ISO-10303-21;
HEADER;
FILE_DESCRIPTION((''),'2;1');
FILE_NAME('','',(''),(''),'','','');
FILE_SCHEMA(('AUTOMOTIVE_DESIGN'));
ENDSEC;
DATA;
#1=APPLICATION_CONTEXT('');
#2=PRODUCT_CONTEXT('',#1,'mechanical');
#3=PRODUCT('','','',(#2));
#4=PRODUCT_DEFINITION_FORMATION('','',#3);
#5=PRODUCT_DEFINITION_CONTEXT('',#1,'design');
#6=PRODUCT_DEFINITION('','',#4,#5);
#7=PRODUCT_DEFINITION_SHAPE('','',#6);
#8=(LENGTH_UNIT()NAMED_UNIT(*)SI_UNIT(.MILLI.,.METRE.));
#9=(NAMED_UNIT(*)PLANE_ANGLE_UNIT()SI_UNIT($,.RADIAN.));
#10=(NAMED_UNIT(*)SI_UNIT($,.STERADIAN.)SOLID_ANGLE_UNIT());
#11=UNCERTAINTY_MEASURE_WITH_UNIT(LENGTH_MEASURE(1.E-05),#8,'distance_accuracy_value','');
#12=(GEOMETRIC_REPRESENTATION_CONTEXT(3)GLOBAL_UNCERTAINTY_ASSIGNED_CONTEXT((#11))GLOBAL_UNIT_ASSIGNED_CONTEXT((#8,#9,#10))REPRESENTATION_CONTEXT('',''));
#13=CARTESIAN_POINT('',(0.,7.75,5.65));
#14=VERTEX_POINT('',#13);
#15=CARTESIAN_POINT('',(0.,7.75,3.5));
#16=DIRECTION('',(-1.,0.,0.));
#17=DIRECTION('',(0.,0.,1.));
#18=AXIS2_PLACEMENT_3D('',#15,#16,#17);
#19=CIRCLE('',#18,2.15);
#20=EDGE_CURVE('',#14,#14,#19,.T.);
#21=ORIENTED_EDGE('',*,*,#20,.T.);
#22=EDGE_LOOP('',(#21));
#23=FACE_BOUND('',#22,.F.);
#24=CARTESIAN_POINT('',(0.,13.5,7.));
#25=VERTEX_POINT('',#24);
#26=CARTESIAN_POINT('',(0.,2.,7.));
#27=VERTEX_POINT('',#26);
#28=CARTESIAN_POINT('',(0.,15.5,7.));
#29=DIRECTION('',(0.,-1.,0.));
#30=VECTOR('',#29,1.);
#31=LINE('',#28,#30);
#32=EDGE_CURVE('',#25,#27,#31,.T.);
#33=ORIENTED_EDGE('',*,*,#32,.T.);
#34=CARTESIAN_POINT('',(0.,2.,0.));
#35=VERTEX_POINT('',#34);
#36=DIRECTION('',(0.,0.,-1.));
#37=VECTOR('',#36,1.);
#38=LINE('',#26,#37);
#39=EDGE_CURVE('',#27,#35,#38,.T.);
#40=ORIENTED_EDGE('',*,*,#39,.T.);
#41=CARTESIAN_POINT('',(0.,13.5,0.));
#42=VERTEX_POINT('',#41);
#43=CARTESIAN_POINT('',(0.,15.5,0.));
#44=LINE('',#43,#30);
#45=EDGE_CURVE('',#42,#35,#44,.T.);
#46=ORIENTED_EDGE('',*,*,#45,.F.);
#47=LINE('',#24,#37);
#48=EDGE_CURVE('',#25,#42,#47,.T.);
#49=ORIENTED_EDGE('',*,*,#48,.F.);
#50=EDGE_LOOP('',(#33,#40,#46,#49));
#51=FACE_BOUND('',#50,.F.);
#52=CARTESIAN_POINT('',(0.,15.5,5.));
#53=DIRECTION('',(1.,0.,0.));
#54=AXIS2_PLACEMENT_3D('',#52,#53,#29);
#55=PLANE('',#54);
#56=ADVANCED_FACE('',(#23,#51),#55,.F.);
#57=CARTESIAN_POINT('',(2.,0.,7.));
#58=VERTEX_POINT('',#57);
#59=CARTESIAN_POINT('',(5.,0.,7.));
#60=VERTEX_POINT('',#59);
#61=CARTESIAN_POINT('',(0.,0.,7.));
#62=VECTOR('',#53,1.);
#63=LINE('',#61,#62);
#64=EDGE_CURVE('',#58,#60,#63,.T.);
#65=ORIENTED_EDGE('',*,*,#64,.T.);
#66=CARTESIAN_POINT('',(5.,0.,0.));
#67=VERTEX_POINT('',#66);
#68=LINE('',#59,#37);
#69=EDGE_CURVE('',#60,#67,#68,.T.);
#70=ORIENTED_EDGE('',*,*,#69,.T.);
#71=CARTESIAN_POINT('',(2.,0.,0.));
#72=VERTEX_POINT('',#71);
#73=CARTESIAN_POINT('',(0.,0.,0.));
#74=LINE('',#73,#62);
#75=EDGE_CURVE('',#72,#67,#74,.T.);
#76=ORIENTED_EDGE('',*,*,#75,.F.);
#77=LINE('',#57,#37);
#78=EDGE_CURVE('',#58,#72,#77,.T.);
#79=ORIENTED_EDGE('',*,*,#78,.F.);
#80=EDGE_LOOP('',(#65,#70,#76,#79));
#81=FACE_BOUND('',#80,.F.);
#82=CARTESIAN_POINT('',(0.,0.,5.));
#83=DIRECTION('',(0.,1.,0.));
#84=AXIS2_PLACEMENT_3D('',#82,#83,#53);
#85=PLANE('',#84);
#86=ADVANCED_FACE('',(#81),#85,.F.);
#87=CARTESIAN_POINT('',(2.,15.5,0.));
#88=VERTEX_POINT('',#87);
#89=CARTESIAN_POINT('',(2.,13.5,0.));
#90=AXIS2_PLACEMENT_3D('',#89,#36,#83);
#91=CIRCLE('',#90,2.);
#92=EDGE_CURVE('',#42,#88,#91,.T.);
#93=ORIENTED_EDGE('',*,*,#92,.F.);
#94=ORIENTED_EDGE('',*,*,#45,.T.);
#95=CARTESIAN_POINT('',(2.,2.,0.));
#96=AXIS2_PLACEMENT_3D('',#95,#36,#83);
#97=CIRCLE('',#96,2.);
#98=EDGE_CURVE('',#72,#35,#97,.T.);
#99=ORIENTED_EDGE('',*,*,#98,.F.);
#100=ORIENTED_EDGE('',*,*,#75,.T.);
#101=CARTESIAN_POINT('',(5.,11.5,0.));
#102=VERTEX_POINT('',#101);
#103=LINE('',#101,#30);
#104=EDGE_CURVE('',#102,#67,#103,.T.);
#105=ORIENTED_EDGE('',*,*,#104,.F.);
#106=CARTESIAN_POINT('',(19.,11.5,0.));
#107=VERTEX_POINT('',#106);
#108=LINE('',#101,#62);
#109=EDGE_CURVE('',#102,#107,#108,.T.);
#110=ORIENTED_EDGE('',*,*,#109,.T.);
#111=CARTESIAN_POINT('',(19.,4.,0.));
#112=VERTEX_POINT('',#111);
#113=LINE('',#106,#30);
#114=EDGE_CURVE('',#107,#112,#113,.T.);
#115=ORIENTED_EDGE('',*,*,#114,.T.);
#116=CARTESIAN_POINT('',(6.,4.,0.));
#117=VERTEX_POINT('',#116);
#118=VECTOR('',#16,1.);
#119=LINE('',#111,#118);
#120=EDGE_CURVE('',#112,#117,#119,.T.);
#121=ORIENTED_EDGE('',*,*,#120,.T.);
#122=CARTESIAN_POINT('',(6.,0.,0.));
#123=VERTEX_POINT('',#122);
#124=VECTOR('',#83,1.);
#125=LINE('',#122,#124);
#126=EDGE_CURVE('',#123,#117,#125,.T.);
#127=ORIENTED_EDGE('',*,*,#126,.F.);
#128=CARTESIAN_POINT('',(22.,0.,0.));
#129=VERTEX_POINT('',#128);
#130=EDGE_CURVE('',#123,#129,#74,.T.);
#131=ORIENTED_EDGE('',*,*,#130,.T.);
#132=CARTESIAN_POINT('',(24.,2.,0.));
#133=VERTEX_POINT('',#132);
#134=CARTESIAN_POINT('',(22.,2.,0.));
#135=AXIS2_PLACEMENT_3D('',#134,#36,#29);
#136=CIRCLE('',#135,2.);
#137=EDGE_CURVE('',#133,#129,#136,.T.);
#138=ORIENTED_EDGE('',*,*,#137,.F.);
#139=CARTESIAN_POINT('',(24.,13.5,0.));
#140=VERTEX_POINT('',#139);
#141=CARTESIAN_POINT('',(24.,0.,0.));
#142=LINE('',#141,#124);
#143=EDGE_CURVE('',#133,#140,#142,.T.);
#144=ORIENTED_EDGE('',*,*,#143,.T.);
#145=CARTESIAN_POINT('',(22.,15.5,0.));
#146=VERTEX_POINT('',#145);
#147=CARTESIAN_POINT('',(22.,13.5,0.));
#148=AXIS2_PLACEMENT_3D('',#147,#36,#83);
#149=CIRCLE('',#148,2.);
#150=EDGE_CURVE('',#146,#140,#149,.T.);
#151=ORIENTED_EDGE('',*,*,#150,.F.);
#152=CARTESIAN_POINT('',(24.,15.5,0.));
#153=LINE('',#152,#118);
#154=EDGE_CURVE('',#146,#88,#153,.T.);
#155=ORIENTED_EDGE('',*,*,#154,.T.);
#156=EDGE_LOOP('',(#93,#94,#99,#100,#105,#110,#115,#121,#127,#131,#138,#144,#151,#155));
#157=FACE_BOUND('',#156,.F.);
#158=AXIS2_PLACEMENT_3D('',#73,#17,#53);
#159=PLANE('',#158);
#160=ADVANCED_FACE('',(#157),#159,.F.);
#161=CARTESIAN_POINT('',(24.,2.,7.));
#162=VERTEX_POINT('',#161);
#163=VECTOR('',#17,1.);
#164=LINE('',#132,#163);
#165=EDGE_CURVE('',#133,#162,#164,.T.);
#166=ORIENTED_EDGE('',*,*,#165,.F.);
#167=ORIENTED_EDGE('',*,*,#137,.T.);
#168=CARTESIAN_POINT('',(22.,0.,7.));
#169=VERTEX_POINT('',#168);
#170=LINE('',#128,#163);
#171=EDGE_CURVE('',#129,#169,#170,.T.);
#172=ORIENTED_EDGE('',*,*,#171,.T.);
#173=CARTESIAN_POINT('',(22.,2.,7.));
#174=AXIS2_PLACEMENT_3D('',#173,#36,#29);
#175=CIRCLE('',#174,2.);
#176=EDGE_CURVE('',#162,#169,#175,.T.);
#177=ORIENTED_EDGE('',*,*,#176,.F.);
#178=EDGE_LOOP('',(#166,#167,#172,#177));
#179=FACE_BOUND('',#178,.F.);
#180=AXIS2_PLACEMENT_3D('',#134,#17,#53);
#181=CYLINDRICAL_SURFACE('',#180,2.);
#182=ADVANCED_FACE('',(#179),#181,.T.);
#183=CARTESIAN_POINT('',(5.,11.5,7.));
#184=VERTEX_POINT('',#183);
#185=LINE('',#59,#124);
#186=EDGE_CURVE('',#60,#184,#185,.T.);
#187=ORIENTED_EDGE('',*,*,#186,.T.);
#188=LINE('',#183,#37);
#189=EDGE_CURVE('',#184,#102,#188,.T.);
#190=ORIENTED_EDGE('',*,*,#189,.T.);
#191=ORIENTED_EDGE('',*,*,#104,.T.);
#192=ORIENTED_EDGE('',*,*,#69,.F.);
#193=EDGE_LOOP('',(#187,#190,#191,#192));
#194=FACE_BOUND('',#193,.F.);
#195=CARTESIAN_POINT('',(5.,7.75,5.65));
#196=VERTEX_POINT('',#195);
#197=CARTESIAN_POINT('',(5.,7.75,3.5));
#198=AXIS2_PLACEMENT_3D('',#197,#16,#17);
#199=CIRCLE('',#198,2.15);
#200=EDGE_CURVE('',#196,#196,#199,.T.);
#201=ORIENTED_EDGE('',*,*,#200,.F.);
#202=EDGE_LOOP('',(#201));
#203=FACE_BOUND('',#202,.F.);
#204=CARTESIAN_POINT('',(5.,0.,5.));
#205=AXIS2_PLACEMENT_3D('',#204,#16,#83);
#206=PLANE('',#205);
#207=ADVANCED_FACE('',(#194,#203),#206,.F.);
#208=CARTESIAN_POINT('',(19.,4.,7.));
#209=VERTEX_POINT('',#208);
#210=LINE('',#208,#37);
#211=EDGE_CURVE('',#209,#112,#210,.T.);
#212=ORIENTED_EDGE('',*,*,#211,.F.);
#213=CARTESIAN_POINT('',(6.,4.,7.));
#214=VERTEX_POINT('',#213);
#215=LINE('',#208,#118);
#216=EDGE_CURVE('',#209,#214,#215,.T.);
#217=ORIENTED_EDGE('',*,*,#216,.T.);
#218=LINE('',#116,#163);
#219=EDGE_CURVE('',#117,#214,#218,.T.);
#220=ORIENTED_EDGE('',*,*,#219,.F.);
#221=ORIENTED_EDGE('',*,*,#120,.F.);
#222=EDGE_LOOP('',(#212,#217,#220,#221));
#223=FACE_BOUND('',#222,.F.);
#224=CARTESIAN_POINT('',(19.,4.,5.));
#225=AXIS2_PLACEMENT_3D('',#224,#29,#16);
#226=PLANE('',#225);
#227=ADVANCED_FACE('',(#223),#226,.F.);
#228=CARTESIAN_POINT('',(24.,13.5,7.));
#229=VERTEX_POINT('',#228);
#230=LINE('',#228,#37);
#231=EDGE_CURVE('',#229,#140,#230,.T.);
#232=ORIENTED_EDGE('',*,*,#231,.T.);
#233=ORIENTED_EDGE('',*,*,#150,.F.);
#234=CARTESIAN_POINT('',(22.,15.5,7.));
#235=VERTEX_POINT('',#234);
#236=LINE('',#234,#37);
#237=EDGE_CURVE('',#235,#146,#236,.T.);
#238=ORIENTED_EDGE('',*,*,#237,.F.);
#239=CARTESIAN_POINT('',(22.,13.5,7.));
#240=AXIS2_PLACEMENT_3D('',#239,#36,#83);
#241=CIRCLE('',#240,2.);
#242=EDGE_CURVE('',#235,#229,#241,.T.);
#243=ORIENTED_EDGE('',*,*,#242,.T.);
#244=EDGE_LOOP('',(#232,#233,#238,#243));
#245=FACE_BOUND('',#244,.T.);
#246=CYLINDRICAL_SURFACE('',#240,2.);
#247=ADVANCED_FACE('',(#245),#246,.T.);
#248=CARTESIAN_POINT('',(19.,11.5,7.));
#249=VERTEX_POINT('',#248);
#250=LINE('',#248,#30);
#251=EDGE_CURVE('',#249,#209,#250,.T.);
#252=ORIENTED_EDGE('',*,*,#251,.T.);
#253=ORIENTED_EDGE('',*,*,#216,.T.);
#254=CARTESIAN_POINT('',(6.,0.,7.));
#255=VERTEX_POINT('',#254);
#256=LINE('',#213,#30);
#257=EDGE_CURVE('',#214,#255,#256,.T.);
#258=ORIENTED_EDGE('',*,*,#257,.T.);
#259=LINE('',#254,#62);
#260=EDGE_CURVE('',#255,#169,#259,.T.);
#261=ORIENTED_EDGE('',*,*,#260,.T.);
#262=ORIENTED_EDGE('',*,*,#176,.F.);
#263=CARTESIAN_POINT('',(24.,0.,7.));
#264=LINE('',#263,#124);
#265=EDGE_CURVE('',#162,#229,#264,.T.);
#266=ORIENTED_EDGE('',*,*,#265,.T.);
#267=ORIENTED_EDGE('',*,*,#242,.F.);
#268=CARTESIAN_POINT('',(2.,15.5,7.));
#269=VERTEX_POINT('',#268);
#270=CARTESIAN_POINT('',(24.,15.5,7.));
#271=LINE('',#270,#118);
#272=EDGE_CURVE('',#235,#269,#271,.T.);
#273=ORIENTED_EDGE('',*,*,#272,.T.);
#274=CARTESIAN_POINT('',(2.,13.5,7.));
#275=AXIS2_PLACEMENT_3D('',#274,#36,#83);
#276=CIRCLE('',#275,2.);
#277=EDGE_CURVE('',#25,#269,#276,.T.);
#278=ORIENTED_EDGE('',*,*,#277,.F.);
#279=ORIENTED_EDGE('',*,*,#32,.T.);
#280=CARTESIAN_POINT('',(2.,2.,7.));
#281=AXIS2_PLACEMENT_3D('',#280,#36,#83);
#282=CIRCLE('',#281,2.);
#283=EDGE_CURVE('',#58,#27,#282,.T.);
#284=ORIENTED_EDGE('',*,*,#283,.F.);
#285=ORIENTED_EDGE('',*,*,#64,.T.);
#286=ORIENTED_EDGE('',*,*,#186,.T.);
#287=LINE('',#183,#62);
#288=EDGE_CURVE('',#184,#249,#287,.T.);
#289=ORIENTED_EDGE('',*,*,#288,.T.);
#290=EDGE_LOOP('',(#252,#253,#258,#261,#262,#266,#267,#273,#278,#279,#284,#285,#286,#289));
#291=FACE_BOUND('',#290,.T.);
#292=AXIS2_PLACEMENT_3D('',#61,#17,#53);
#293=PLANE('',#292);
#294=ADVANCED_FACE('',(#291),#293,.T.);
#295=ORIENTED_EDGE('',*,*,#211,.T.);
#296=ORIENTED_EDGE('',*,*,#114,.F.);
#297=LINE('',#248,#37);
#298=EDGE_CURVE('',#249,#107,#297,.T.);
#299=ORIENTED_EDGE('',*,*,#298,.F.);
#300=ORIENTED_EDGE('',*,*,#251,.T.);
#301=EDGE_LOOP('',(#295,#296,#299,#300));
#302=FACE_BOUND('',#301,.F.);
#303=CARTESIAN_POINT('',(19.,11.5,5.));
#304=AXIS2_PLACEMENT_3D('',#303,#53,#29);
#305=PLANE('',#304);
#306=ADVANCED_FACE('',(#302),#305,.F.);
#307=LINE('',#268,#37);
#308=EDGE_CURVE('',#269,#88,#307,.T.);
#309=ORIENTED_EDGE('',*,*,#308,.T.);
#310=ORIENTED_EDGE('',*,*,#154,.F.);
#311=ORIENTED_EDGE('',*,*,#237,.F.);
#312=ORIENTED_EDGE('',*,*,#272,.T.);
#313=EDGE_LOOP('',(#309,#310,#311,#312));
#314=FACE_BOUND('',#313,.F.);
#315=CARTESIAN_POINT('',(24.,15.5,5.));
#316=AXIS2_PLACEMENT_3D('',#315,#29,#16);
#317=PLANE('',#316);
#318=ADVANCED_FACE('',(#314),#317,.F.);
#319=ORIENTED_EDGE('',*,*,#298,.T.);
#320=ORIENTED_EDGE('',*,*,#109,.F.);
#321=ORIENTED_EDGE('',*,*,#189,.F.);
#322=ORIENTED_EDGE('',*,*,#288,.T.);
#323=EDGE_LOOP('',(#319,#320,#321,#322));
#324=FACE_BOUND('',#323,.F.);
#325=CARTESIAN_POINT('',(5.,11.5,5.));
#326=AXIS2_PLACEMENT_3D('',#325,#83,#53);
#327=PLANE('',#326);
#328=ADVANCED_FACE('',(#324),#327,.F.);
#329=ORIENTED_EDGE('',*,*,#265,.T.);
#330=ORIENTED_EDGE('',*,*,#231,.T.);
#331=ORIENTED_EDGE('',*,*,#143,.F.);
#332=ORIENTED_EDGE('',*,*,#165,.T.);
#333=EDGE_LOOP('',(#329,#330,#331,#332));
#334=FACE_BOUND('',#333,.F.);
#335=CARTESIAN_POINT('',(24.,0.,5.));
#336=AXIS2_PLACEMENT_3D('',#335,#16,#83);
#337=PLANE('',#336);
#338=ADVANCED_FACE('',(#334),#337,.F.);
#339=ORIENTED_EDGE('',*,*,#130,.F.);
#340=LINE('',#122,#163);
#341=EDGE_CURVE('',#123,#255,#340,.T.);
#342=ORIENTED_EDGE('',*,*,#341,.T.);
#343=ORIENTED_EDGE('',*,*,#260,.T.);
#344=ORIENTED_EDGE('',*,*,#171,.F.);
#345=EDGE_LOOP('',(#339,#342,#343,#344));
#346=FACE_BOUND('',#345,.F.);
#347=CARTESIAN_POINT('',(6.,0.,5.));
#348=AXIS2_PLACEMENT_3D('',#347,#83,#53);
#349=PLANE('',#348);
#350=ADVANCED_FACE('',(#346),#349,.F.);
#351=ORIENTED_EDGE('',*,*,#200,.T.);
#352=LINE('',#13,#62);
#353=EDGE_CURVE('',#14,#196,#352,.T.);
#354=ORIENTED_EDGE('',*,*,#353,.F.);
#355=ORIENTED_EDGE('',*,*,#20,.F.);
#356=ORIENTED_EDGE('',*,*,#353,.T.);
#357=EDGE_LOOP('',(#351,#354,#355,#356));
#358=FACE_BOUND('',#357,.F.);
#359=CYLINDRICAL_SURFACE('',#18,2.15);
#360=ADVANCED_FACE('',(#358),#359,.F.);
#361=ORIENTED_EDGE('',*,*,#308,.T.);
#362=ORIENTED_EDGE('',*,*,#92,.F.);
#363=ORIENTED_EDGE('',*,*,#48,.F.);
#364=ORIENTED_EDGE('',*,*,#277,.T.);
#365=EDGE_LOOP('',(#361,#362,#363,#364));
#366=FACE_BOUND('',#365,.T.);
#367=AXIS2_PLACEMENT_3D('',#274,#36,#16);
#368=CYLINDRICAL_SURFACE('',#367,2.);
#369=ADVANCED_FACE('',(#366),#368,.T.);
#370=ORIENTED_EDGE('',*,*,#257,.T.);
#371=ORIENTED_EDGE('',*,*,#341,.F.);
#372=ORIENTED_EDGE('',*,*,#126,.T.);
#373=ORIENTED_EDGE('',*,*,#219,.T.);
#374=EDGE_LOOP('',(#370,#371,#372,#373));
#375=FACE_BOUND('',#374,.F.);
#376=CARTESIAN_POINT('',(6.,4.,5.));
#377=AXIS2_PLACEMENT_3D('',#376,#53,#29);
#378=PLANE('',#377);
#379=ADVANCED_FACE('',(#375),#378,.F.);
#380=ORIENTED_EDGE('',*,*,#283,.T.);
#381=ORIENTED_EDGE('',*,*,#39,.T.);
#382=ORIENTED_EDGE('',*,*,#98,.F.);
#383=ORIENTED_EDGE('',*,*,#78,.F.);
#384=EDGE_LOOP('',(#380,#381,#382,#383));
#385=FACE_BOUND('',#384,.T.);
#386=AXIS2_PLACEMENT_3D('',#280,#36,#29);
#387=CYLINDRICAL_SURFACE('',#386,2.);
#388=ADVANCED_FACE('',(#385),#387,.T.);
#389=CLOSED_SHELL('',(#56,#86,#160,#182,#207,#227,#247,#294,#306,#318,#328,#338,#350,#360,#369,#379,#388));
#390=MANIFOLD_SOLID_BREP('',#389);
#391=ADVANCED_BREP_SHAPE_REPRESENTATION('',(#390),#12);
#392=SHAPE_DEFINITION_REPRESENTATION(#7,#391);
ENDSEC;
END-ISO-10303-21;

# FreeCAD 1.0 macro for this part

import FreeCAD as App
import Part
import Sketcher
from FreeCAD import Vector
Q = App.Units.Quantity


def edges_at(feature, points):
    """Names of the edges that pass closest to the given points."""
    edges = feature.Shape.Edges
    near = lambda p: min(range(len(edges)), key=lambda i: edges[i].distToShape(Part.Vertex(*p))[0])
    return sorted({f"Edge{near(p) + 1}" for p in points})

doc = App.newDocument("Part")
body = doc.addObject("PartDesign::Body", "Body")

sketch1 = body.newObject("Sketcher::SketchObject", "Sketch")
sketch1.AttachmentSupport = (doc.getObject("XY_Plane"), [""])
sketch1.MapMode = "FlatFace"
sketch1.addGeometry([
    Part.LineSegment(Vector(0, 16, 0), Vector(0, 0, 0)),
    Part.LineSegment(Vector(0, 0, 0), Vector(24, 0, 0)),
    Part.LineSegment(Vector(24, 0, 0), Vector(24, 16, 0)),
    Part.LineSegment(Vector(24, 16, 0), Vector(0, 16, 0)),
], False)
sketch1.addConstraint([
    Sketcher.Constraint("Coincident", 0, 2, 1, 1),
    Sketcher.Constraint("Coincident", 1, 2, 2, 1),
    Sketcher.Constraint("Coincident", 2, 2, 3, 1),
    Sketcher.Constraint("Coincident", 3, 2, 0, 1),
    Sketcher.Constraint("Vertical", 0),
    Sketcher.Constraint("Horizontal", 1),
    Sketcher.Constraint("Vertical", 2),
    Sketcher.Constraint("Horizontal", 3),
    Sketcher.Constraint("Coincident", 0, 2, -1, 1),
    Sketcher.Constraint("DistanceX", 1, 1, 1, 2, Q("24 mm")),
    Sketcher.Constraint("DistanceY", 0, 2, 0, 1, Q("15.5 mm")),
])
pad1 = body.newObject("PartDesign::Pad", "Pad")
pad1.Profile = sketch1
pad1.Length = 5

sketch2 = body.newObject("Sketcher::SketchObject", "Sketch001")
sketch2.AttachmentSupport = (doc.getObject("XY_Plane"), [""])
sketch2.MapMode = "FlatFace"
sketch2.AttachmentOffset = App.Placement(Vector(0, 0, 5), App.Rotation())
sketch2.addGeometry([
    Part.LineSegment(Vector(19, 12, 0), Vector(5, 12, 0)),
    Part.LineSegment(Vector(5, 12, 0), Vector(5, 4, 0)),
    Part.LineSegment(Vector(5, 4, 0), Vector(19, 4, 0)),
    Part.LineSegment(Vector(19, 4, 0), Vector(19, 12, 0)),
], False)
sketch2.addConstraint([
    Sketcher.Constraint("Coincident", 0, 2, 1, 1),
    Sketcher.Constraint("Coincident", 1, 2, 2, 1),
    Sketcher.Constraint("Coincident", 2, 2, 3, 1),
    Sketcher.Constraint("Coincident", 3, 2, 0, 1),
    Sketcher.Constraint("Horizontal", 0),
    Sketcher.Constraint("Vertical", 1),
    Sketcher.Constraint("Horizontal", 2),
    Sketcher.Constraint("Vertical", 3),
    Sketcher.Constraint("DistanceX", 0, 2, 0, 1, Q("14 mm")),
    Sketcher.Constraint("DistanceY", 1, 2, 1, 1, Q("7.5 mm")),
    Sketcher.Constraint("DistanceX", -1, 1, 0, 2, Q("5 mm")),
    Sketcher.Constraint("DistanceY", -1, 1, 1, 2, Q("4 mm")),
])
pocket1 = body.newObject("PartDesign::Pocket", "Pocket")
pocket1.Profile = sketch2
pocket1.Length = 5

sketch3 = body.newObject("Sketcher::SketchObject", "Sketch002")
sketch3.AttachmentSupport = (doc.getObject("XZ_Plane"), [""])
sketch3.MapMode = "FlatFace"
sketch3.addGeometry([
    Part.LineSegment(Vector(5, 5, 0), Vector(5, 0, 0)),
    Part.LineSegment(Vector(5, 0, 0), Vector(6, 0, 0)),
    Part.LineSegment(Vector(6, 0, 0), Vector(6, 5, 0)),
    Part.LineSegment(Vector(6, 5, 0), Vector(5, 5, 0)),
], False)
sketch3.addConstraint([
    Sketcher.Constraint("Coincident", 0, 2, 1, 1),
    Sketcher.Constraint("Coincident", 1, 2, 2, 1),
    Sketcher.Constraint("Coincident", 2, 2, 3, 1),
    Sketcher.Constraint("Coincident", 3, 2, 0, 1),
    Sketcher.Constraint("Vertical", 0),
    Sketcher.Constraint("Horizontal", 1),
    Sketcher.Constraint("Vertical", 2),
    Sketcher.Constraint("Horizontal", 3),
    Sketcher.Constraint("PointOnObject", 0, 2, -1),
    Sketcher.Constraint("DistanceY", 0, 2, 0, 1, Q("5 mm")),
    Sketcher.Constraint("DistanceX", -1, 1, 0, 2, Q("5 mm")),
    Sketcher.Constraint("DistanceX", 1, 1, 1, 2, Q("1 mm")),
])
pocket2 = body.newObject("PartDesign::Pocket", "Pocket001")
pocket2.Profile = sketch3
pocket2.Length = 5

sketch4 = body.newObject("Sketcher::SketchObject", "Sketch003")
sketch4.AttachmentSupport = (doc.getObject("XY_Plane"), [""])
sketch4.MapMode = "FlatFace"
sketch4.AttachmentOffset = App.Placement(Vector(0, 0, 5), App.Rotation())
sketch4.addGeometry([
    Part.LineSegment(Vector(19, 4, 0), Vector(6, 4, 0)),
    Part.LineSegment(Vector(6, 4, 0), Vector(6, 0, 0)),
    Part.LineSegment(Vector(6, 0, 0), Vector(24, 0, 0)),
    Part.LineSegment(Vector(24, 0, 0), Vector(24, 15.5, 0)),
    Part.LineSegment(Vector(24, 15.5, 0), Vector(0, 15.5, 0)),
    Part.LineSegment(Vector(0, 15.5, 0), Vector(0, 0, 0)),
    Part.LineSegment(Vector(0, 0, 0), Vector(5, 0, 0)),
    Part.LineSegment(Vector(5, 0, 0), Vector(5, 11.5, 0)),
    Part.LineSegment(Vector(5, 11.5, 0), Vector(19, 11.5, 0)),
    Part.LineSegment(Vector(19, 11.5, 0), Vector(19, 4, 0)),
], False)
sketch4.addConstraint([
    Sketcher.Constraint("Coincident", 0, 2, 1, 1),
    Sketcher.Constraint("Coincident", 1, 2, 2, 1),
    Sketcher.Constraint("Coincident", 2, 2, 3, 1),
    Sketcher.Constraint("Coincident", 3, 2, 4, 1),
    Sketcher.Constraint("Coincident", 4, 2, 5, 1),
    Sketcher.Constraint("Coincident", 5, 2, 6, 1),
    Sketcher.Constraint("Coincident", 6, 2, 7, 1),
    Sketcher.Constraint("Coincident", 7, 2, 8, 1),
    Sketcher.Constraint("Coincident", 8, 2, 9, 1),
    Sketcher.Constraint("Coincident", 9, 2, 0, 1),
    Sketcher.Constraint("Horizontal", 0),
    Sketcher.Constraint("Vertical", 1),
    Sketcher.Constraint("Horizontal", 2),
    Sketcher.Constraint("Vertical", 3),
    Sketcher.Constraint("Horizontal", 4),
    Sketcher.Constraint("Vertical", 5),
    Sketcher.Constraint("Horizontal", 6),
    Sketcher.Constraint("Vertical", 7),
    Sketcher.Constraint("Horizontal", 8),
    Sketcher.Constraint("Vertical", 9),
    Sketcher.Constraint("Coincident", 5, 2, -1, 1),
    Sketcher.Constraint("PointOnObject", 1, 2, -1),
    Sketcher.Constraint("DistanceX", 0, 2, 0, 1, Q("13 mm")),
    Sketcher.Constraint("DistanceX", 2, 1, 2, 2, Q("18 mm")),
    Sketcher.Constraint("DistanceX", 4, 2, 4, 1, Q("24 mm")),
    Sketcher.Constraint("DistanceX", 6, 1, 6, 2, Q("5 mm")),
    Sketcher.Constraint("DistanceY", 1, 2, 1, 1, Q("4 mm")),
    Sketcher.Constraint("DistanceY", 3, 1, 3, 2, Q("15.5 mm")),
    Sketcher.Constraint("DistanceY", 7, 1, 7, 2, Q("11.5 mm")),
])
pad2 = body.newObject("PartDesign::Pad", "Pad001")
pad2.Profile = sketch4
pad2.Length = 2

sketch5 = body.newObject("Sketcher::SketchObject", "Sketch004")
sketch5.AttachmentSupport = (doc.getObject("YZ_Plane"), [""])
sketch5.MapMode = "FlatFace"
sketch5.addGeometry(Part.Circle(Vector(7.8, 3.5, 0), Vector(0, 0, 1), 2.1), False)
sketch5.addConstraint([
    Sketcher.Constraint("Diameter", 0, Q("4.3 mm")),
    Sketcher.Constraint("DistanceY", -1, 1, 0, 3, Q("3.5 mm")),
    Sketcher.Constraint("DistanceX", -1, 1, 0, 3, Q("7.75 mm")),
])
pocket3 = body.newObject("PartDesign::Pocket", "Pocket002")
pocket3.Profile = sketch5
pocket3.Length = 5
pocket3.Reversed = True
doc.recompute()

fillet = body.newObject("PartDesign::Fillet", "Fillet")
fillet.Base = (pocket3, edges_at(pocket3, [
    (24, 0, 3.5),
    (24, 15.5, 3.5),
    (0, 0, 3.5),
    (0, 15.5, 3.5),
]))
fillet.Radius = 2

doc.recompute()
